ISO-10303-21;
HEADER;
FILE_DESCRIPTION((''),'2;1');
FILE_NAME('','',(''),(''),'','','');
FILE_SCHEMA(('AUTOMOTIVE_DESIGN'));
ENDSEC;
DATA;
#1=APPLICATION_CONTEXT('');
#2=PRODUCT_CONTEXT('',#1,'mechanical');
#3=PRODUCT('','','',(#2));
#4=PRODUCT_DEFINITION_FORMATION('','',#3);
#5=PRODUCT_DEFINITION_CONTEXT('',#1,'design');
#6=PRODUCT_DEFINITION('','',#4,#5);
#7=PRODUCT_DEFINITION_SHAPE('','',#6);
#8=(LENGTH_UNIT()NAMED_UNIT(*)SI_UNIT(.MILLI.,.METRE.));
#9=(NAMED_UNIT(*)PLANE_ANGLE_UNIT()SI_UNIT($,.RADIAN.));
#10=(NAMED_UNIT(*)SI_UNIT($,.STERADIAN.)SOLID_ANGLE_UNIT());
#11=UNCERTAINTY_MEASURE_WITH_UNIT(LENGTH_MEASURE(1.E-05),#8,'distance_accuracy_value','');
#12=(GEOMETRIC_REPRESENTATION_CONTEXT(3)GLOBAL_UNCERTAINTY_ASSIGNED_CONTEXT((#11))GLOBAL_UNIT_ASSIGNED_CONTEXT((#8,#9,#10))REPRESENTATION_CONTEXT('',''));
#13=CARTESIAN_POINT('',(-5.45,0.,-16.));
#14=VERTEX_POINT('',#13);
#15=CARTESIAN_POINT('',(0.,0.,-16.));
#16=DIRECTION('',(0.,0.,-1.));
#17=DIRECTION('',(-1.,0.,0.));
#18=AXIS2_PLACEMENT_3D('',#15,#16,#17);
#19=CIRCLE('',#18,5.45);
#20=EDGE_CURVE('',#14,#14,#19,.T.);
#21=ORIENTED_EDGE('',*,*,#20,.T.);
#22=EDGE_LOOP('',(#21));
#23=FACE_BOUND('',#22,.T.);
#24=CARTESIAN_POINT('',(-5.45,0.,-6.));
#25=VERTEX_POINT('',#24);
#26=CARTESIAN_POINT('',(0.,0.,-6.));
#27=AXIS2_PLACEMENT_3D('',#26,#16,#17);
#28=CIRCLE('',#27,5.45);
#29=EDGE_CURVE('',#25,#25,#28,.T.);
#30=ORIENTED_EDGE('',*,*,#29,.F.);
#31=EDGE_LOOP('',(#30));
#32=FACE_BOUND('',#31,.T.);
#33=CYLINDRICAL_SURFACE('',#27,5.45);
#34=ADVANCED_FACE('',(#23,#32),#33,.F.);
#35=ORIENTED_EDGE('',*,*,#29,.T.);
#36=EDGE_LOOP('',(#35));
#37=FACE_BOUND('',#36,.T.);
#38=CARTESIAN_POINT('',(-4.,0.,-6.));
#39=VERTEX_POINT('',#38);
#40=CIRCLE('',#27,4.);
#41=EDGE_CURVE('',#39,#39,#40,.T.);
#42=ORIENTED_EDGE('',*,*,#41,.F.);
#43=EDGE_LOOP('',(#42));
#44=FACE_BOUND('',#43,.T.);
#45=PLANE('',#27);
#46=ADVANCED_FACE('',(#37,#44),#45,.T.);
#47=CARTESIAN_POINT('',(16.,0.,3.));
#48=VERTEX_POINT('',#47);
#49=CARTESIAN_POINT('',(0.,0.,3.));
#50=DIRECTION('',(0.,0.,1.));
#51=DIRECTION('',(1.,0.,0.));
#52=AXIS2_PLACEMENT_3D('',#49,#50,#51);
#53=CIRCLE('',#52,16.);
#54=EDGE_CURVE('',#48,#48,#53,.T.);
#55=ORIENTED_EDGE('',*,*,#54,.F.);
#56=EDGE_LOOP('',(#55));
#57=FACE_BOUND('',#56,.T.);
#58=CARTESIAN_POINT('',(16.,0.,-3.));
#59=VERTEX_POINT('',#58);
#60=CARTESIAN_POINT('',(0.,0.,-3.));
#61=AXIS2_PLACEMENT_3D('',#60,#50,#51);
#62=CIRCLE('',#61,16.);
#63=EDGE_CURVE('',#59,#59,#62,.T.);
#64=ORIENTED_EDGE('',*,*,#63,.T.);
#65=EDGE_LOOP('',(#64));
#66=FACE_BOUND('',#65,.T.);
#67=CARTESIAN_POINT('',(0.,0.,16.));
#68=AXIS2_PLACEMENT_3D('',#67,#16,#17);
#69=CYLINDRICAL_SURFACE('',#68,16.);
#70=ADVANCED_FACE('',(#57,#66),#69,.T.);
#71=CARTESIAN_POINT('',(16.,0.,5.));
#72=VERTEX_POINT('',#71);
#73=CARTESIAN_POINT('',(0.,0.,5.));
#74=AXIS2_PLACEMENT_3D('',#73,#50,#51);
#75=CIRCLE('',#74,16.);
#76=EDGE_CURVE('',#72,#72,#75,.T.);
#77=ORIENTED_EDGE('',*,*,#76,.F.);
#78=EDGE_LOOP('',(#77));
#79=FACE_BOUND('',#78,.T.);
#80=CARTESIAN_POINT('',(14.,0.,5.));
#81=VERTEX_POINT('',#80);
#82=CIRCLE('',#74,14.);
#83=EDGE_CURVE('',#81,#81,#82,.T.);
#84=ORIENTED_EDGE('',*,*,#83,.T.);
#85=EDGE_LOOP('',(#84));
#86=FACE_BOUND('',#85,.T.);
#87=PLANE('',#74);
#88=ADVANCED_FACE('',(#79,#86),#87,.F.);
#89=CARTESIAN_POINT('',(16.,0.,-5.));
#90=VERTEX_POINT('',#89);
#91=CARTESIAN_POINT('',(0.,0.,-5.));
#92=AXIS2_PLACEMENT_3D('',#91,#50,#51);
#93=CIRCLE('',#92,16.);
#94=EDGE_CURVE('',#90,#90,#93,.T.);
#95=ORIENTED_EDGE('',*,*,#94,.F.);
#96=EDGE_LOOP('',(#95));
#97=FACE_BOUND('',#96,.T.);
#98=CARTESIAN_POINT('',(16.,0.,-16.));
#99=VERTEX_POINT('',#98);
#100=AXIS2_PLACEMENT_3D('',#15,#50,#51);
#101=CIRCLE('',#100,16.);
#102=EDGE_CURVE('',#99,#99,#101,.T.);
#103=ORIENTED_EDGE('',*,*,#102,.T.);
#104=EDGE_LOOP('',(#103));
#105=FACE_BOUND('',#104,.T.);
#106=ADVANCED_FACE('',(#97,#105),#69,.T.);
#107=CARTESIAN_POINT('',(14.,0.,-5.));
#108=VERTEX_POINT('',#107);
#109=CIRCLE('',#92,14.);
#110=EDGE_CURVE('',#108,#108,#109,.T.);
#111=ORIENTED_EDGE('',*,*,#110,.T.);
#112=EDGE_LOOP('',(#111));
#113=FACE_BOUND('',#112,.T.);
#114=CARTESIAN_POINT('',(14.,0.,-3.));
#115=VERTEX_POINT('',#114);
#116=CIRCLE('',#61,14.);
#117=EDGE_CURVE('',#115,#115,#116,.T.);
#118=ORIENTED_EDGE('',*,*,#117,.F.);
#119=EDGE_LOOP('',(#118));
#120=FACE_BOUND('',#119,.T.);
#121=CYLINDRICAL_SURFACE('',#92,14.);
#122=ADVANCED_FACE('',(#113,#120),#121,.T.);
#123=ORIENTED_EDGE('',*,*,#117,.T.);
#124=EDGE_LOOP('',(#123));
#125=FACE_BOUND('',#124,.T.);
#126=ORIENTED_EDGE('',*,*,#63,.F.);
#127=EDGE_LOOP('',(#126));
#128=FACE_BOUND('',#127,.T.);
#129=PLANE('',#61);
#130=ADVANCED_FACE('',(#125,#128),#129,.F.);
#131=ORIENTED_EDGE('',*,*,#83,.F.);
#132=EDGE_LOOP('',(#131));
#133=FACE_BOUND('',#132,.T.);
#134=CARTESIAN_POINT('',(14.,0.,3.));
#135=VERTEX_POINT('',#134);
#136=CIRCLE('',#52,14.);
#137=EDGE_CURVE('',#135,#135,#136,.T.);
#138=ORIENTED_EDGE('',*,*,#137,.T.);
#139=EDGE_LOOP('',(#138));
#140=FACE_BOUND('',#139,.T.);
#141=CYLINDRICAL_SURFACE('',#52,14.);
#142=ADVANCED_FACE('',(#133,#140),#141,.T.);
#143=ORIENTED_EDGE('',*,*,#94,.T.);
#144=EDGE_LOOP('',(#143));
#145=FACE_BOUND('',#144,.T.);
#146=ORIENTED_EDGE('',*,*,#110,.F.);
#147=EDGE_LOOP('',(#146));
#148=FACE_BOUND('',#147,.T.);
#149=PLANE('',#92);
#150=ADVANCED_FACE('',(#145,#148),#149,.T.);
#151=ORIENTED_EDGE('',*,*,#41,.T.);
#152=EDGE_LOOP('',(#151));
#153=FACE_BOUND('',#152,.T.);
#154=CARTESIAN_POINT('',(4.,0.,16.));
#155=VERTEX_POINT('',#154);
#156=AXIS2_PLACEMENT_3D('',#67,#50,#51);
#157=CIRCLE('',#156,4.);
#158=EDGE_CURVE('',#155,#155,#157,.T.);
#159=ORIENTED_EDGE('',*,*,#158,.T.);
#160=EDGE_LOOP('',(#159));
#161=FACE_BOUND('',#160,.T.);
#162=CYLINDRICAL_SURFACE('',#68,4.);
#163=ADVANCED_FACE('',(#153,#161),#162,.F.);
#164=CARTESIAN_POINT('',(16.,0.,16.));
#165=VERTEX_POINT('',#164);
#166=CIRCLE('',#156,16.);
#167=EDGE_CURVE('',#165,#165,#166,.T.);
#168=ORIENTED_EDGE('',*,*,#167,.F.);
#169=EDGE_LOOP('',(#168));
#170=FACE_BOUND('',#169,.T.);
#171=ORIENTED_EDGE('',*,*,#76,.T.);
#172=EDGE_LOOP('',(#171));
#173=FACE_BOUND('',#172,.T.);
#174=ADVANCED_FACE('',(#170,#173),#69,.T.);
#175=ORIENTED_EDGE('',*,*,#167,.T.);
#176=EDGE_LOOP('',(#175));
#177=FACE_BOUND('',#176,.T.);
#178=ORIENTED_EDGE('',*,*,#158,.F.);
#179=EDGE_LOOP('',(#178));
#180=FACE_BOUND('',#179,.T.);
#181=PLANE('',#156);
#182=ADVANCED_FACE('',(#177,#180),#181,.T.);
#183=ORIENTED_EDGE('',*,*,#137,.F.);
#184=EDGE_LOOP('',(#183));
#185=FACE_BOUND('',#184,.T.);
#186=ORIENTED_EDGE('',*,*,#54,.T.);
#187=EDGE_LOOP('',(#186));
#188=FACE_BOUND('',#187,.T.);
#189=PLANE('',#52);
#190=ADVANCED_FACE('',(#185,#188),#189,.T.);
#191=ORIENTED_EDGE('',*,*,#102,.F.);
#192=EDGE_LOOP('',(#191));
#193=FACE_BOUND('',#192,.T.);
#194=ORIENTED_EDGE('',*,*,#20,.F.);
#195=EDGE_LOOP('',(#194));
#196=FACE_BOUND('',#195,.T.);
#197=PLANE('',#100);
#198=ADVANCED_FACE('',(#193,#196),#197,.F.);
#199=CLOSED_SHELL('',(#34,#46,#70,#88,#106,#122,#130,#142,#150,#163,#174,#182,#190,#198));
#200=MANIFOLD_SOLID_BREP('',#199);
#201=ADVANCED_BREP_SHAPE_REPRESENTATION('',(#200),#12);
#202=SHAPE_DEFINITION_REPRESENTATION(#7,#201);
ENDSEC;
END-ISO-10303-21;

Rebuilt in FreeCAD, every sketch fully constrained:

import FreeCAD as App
import Part
import Sketcher

doc = App.newDocument("Part")
body = doc.addObject("PartDesign::Body", "Body")

sketch1 = doc.addObject("Sketcher::SketchObject", "Sketch")
body.addObject(sketch1)
sketch1.AttachmentSupport = (doc.XY_Plane, [""])
sketch1.MapMode = "FlatFace"
sketch1.addGeometry([
    Part.Circle(App.Vector(0, 0, 0), App.Vector(0, 0, 1), 16),
    Part.Circle(App.Vector(0, 0, 0), App.Vector(0, 0, 1), 4),
], False)
sketch1.addConstraint([
    Sketcher.Constraint("Coincident", 0, 3, -1, 1),
    Sketcher.Constraint("Coincident", 1, 3, -1, 1),
    Sketcher.Constraint("Diameter", 0, 32.0),
    Sketcher.Constraint("Diameter", 1, 8.0),
])
pad1 = doc.addObject("PartDesign::Pad", "Pad")
body.addObject(pad1)
pad1.Profile = sketch1
pad1.Length = 32
pad1.Midplane = True

sketch2 = doc.addObject("Sketcher::SketchObject", "Sketch001")
body.addObject(sketch2)
sketch2.AttachmentSupport = (doc.XY_Plane, [""])
sketch2.MapMode = "FlatFace"
sketch2.AttachmentOffset = App.Placement(App.Vector(0, 0, 5), App.Rotation())
sketch2.addGeometry([
    Part.Circle(App.Vector(0, 0, 0), App.Vector(0, 0, 1), 16),
    Part.Circle(App.Vector(0, 0, 0), App.Vector(0, 0, 1), 14),
], False)
sketch2.addConstraint([
    Sketcher.Constraint("Coincident", 0, 3, -1, 1),
    Sketcher.Constraint("Coincident", 1, 3, -1, 1),
    Sketcher.Constraint("Diameter", 0, 32.0),
    Sketcher.Constraint("Diameter", 1, 28.0),
])
pocket1 = doc.addObject("PartDesign::Pocket", "Pocket")
body.addObject(pocket1)
pocket1.Profile = sketch2
pocket1.Length = 2

sketch3 = doc.addObject("Sketcher::SketchObject", "Sketch002")
body.addObject(sketch3)
sketch3.AttachmentSupport = (doc.XY_Plane, [""])
sketch3.MapMode = "FlatFace"
sketch3.AttachmentOffset = App.Placement(App.Vector(0, 0, -3), App.Rotation())
sketch3.addGeometry([
    Part.Circle(App.Vector(0, 0, 0), App.Vector(0, 0, 1), 16),
    Part.Circle(App.Vector(0, 0, 0), App.Vector(0, 0, 1), 14),
], False)
sketch3.addConstraint([
    Sketcher.Constraint("Coincident", 0, 3, -1, 1),
    Sketcher.Constraint("Coincident", 1, 3, -1, 1),
    Sketcher.Constraint("Diameter", 0, 32.0),
    Sketcher.Constraint("Diameter", 1, 28.0),
])
pocket2 = doc.addObject("PartDesign::Pocket", "Pocket001")
body.addObject(pocket2)
pocket2.Profile = sketch3
pocket2.Length = 2

sketch4 = doc.addObject("Sketcher::SketchObject", "Sketch003")
body.addObject(sketch4)
sketch4.AttachmentSupport = (doc.XY_Plane, [""])
sketch4.MapMode = "FlatFace"
sketch4.AttachmentOffset = App.Placement(App.Vector(0, 0, -16), App.Rotation())
sketch4.addGeometry(Part.Circle(App.Vector(0, 0, 0), App.Vector(0, 0, 1), 5), False)
sketch4.addConstraint([
    Sketcher.Constraint("Coincident", 0, 3, -1, 1),
    Sketcher.Constraint("Diameter", 0, 10.9),
])
pocket3 = doc.addObject("PartDesign::Pocket", "Pocket002")
body.addObject(pocket3)
pocket3.Profile = sketch4
pocket3.Length = 10
pocket3.Reversed = True

doc.recompute()
